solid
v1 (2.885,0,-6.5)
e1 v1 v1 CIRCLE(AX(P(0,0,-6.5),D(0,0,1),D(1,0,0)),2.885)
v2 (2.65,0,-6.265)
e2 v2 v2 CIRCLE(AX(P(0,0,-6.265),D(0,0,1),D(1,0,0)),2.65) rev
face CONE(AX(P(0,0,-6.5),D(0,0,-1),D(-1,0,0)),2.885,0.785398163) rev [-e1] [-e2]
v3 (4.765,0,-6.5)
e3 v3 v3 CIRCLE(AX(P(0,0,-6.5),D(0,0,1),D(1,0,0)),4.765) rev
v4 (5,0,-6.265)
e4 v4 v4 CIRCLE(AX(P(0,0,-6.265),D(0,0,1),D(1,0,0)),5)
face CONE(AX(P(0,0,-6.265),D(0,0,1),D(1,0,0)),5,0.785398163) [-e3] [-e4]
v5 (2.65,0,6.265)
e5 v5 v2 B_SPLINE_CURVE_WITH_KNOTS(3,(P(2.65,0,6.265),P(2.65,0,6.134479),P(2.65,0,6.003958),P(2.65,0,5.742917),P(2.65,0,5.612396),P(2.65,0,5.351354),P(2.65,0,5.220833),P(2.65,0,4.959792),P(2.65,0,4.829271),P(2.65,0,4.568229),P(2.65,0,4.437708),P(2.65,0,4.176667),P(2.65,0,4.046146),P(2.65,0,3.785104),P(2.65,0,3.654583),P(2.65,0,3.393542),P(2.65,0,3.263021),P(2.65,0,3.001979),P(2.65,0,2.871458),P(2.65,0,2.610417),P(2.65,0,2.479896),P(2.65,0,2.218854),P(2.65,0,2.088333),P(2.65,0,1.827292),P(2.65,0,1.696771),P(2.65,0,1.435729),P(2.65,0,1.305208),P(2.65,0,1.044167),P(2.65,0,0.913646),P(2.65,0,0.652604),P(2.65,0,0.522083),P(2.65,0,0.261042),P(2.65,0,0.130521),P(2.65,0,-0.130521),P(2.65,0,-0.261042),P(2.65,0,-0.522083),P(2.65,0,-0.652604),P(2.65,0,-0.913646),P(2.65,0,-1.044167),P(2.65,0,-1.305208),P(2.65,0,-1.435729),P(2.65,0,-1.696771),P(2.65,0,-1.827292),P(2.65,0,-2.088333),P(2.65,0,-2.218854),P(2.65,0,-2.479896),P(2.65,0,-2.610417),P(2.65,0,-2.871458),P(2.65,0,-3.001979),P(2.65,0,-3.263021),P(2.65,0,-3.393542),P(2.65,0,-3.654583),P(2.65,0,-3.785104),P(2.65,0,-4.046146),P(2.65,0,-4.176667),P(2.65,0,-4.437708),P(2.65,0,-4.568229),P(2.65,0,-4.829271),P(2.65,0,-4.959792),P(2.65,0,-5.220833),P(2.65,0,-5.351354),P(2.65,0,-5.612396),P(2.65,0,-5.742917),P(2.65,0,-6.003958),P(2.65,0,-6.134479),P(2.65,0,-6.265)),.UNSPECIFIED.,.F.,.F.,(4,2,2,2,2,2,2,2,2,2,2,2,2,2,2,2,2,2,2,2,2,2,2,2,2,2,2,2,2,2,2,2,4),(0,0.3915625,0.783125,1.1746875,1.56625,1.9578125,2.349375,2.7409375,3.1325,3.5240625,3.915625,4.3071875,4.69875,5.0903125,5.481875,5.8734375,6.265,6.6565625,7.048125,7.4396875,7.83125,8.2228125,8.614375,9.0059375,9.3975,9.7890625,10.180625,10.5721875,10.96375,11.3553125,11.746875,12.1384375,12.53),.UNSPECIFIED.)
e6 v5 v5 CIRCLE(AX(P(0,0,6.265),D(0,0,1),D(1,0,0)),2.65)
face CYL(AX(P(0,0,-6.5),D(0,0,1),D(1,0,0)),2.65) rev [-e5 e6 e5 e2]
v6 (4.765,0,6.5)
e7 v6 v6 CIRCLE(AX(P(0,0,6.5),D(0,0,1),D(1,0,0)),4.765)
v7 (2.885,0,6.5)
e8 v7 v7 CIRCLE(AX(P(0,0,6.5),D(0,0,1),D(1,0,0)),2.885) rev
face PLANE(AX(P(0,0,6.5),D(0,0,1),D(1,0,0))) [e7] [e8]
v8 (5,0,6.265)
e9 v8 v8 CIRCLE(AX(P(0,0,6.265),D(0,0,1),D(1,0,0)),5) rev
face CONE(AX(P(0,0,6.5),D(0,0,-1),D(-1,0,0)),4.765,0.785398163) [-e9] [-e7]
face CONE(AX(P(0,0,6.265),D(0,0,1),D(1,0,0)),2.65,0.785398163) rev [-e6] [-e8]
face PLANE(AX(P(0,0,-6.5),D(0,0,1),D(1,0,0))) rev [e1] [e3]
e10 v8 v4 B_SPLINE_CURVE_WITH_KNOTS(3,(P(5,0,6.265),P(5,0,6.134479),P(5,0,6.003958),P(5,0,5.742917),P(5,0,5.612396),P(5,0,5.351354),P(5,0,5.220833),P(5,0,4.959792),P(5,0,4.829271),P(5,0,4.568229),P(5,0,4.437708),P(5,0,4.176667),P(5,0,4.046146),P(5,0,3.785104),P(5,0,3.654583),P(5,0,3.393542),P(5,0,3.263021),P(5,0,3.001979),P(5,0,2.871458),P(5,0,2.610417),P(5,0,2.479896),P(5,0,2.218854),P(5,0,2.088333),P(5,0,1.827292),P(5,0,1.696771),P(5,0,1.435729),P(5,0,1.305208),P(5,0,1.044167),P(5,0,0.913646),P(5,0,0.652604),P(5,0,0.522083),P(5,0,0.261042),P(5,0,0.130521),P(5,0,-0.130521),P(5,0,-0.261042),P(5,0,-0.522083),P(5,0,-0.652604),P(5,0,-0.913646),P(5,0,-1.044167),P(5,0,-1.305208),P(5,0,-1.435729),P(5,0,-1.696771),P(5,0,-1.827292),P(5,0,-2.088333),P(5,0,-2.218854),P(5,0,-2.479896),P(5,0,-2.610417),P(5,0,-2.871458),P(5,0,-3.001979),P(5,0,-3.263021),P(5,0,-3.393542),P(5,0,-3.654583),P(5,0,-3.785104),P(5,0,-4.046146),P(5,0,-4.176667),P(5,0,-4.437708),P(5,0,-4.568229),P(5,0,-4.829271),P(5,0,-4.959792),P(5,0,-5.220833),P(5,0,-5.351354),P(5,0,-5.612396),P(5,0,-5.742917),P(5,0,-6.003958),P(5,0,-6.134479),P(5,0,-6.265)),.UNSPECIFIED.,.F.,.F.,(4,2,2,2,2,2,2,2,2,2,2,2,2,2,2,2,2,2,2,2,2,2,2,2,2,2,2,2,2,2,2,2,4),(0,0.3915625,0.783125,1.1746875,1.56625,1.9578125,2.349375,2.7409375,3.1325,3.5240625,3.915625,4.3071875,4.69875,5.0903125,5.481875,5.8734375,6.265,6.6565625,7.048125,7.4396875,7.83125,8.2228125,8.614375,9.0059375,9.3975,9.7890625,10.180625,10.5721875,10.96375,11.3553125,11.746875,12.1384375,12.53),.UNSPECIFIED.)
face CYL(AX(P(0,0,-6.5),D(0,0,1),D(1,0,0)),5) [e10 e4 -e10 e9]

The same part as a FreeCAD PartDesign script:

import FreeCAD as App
import Part
import Sketcher
from FreeCAD import Vector
Q = App.Units.Quantity


def edges_at(feature, points):
    """Names of the edges that pass closest to the given points."""
    edges = feature.Shape.Edges
    near = lambda p: min(range(len(edges)), key=lambda i: edges[i].distToShape(Part.Vertex(*p))[0])
    return sorted({f"Edge{near(p) + 1}" for p in points})

doc = App.newDocument("Part")
params = doc.addObject("Spreadsheet::Sheet", "Params")
for row, (alias, value) in enumerate([
    ("sketch1_diameter", "10 mm"),
    ("sketch1_diameter2", "5.3 mm"),
    ("pad1_length", "6.5 mm"),
    ("pad1_length2", "6.5 mm"),
    ("chamfer_size", "0.235 mm"),
], start=1):
    params.set(f"A{row}", alias)
    params.set(f"B{row}", "=" + value)
    params.setAlias(f"B{row}", alias)

body = doc.addObject("PartDesign::Body", "Body")

sketch1 = doc.addObject("Sketcher::SketchObject", "Sketch")
body.addObject(sketch1)
sketch1.AttachmentSupport = (doc.XY_Plane, [""])
sketch1.MapMode = "FlatFace"
sketch1.addGeometry([
    Part.Circle(Vector(0, 0, 0), Vector(0, 0, 1), 5),
    Part.Circle(Vector(0, 0, 0), Vector(0, 0, 1), 2.6),
], False)
sketch1.addConstraint([
    Sketcher.Constraint("Coincident", 0, 3, -1, 1),
    Sketcher.Constraint("Coincident", 1, 3, -1, 1),
    Sketcher.Constraint("Diameter", 0, Q("10 mm")),
    Sketcher.Constraint("Diameter", 1, Q("5.3 mm")),
])
sketch1.setExpression("Constraints[2]", "Params.sketch1_diameter")
sketch1.setExpression("Constraints[3]", "Params.sketch1_diameter2")
pad1 = doc.addObject("PartDesign::Pad", "Pad")
body.addObject(pad1)
pad1.Profile = sketch1
pad1.Type = "TwoLengths"
pad1.setExpression("Length", "Params.pad1_length")
pad1.setExpression("Length2", "Params.pad1_length2")
doc.recompute()

chamfer = doc.addObject("PartDesign::Chamfer", "Chamfer")
body.addObject(chamfer)
chamfer.Base = (pad1, edges_at(pad1, [
    (-5, 0, -6.5),
    (-2.65, 0, -6.5),
    (-5, 0, 6.5),
    (-2.65, 0, 6.5),
]))
chamfer.setExpression("Size", "Params.chamfer_size")

doc.recompute()
